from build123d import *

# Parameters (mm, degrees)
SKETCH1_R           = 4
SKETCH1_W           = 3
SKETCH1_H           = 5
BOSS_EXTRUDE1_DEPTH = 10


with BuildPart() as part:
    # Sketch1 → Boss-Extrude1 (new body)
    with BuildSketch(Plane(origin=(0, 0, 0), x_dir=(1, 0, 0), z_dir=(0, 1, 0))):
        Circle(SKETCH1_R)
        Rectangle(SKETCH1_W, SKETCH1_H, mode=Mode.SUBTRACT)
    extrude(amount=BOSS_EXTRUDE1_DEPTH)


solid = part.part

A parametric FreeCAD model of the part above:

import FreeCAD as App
import Part
import Sketcher
from FreeCAD import Vector

doc = App.newDocument("Part")
body = doc.addObject("PartDesign::Body", "Body")

sketch1 = body.newObject("Sketcher::SketchObject", "Sketch")
sketch1.AttachmentSupport = (doc.getObject("XZ_Plane"), [""])
sketch1.MapMode = "FlatFace"
sketch1.addGeometry([
    Part.Circle(Vector(0, 0, 0), Vector(0, 0, 1), 4),
    Part.LineSegment(Vector(1.5, 2.5, 0), Vector(-1.5, 2.5, 0)),
    Part.LineSegment(Vector(-1.5, 2.5, 0), Vector(-1.5, -2.5, 0)),
    Part.LineSegment(Vector(-1.5, -2.5, 0), Vector(1.5, -2.5, 0)),
    Part.LineSegment(Vector(1.5, -2.5, 0), Vector(1.5, 2.5, 0)),
], False)
sketch1.addConstraint([
    Sketcher.Constraint("Coincident", 1, 2, 2, 1),
    Sketcher.Constraint("Coincident", 2, 2, 3, 1),
    Sketcher.Constraint("Coincident", 3, 2, 4, 1),
    Sketcher.Constraint("Coincident", 4, 2, 1, 1),
    Sketcher.Constraint("Horizontal", 1),
    Sketcher.Constraint("Vertical", 2),
    Sketcher.Constraint("Horizontal", 3),
    Sketcher.Constraint("Vertical", 4),
    Sketcher.Constraint("Coincident", 0, 3, -1, 1),
    Sketcher.Constraint("Symmetric", 1, 2, 3, 2, -1, 1),
    Sketcher.Constraint("Diameter", 0, 8.0),
    Sketcher.Constraint("DistanceX", 1, 2, 1, 1, 3.0),
    Sketcher.Constraint("DistanceY", 2, 2, 2, 1, 5.0),
])
pad1 = body.newObject("PartDesign::Pad", "Pad")
pad1.Profile = sketch1
pad1.Length = 10
pad1.Reversed = True

doc.recompute()
